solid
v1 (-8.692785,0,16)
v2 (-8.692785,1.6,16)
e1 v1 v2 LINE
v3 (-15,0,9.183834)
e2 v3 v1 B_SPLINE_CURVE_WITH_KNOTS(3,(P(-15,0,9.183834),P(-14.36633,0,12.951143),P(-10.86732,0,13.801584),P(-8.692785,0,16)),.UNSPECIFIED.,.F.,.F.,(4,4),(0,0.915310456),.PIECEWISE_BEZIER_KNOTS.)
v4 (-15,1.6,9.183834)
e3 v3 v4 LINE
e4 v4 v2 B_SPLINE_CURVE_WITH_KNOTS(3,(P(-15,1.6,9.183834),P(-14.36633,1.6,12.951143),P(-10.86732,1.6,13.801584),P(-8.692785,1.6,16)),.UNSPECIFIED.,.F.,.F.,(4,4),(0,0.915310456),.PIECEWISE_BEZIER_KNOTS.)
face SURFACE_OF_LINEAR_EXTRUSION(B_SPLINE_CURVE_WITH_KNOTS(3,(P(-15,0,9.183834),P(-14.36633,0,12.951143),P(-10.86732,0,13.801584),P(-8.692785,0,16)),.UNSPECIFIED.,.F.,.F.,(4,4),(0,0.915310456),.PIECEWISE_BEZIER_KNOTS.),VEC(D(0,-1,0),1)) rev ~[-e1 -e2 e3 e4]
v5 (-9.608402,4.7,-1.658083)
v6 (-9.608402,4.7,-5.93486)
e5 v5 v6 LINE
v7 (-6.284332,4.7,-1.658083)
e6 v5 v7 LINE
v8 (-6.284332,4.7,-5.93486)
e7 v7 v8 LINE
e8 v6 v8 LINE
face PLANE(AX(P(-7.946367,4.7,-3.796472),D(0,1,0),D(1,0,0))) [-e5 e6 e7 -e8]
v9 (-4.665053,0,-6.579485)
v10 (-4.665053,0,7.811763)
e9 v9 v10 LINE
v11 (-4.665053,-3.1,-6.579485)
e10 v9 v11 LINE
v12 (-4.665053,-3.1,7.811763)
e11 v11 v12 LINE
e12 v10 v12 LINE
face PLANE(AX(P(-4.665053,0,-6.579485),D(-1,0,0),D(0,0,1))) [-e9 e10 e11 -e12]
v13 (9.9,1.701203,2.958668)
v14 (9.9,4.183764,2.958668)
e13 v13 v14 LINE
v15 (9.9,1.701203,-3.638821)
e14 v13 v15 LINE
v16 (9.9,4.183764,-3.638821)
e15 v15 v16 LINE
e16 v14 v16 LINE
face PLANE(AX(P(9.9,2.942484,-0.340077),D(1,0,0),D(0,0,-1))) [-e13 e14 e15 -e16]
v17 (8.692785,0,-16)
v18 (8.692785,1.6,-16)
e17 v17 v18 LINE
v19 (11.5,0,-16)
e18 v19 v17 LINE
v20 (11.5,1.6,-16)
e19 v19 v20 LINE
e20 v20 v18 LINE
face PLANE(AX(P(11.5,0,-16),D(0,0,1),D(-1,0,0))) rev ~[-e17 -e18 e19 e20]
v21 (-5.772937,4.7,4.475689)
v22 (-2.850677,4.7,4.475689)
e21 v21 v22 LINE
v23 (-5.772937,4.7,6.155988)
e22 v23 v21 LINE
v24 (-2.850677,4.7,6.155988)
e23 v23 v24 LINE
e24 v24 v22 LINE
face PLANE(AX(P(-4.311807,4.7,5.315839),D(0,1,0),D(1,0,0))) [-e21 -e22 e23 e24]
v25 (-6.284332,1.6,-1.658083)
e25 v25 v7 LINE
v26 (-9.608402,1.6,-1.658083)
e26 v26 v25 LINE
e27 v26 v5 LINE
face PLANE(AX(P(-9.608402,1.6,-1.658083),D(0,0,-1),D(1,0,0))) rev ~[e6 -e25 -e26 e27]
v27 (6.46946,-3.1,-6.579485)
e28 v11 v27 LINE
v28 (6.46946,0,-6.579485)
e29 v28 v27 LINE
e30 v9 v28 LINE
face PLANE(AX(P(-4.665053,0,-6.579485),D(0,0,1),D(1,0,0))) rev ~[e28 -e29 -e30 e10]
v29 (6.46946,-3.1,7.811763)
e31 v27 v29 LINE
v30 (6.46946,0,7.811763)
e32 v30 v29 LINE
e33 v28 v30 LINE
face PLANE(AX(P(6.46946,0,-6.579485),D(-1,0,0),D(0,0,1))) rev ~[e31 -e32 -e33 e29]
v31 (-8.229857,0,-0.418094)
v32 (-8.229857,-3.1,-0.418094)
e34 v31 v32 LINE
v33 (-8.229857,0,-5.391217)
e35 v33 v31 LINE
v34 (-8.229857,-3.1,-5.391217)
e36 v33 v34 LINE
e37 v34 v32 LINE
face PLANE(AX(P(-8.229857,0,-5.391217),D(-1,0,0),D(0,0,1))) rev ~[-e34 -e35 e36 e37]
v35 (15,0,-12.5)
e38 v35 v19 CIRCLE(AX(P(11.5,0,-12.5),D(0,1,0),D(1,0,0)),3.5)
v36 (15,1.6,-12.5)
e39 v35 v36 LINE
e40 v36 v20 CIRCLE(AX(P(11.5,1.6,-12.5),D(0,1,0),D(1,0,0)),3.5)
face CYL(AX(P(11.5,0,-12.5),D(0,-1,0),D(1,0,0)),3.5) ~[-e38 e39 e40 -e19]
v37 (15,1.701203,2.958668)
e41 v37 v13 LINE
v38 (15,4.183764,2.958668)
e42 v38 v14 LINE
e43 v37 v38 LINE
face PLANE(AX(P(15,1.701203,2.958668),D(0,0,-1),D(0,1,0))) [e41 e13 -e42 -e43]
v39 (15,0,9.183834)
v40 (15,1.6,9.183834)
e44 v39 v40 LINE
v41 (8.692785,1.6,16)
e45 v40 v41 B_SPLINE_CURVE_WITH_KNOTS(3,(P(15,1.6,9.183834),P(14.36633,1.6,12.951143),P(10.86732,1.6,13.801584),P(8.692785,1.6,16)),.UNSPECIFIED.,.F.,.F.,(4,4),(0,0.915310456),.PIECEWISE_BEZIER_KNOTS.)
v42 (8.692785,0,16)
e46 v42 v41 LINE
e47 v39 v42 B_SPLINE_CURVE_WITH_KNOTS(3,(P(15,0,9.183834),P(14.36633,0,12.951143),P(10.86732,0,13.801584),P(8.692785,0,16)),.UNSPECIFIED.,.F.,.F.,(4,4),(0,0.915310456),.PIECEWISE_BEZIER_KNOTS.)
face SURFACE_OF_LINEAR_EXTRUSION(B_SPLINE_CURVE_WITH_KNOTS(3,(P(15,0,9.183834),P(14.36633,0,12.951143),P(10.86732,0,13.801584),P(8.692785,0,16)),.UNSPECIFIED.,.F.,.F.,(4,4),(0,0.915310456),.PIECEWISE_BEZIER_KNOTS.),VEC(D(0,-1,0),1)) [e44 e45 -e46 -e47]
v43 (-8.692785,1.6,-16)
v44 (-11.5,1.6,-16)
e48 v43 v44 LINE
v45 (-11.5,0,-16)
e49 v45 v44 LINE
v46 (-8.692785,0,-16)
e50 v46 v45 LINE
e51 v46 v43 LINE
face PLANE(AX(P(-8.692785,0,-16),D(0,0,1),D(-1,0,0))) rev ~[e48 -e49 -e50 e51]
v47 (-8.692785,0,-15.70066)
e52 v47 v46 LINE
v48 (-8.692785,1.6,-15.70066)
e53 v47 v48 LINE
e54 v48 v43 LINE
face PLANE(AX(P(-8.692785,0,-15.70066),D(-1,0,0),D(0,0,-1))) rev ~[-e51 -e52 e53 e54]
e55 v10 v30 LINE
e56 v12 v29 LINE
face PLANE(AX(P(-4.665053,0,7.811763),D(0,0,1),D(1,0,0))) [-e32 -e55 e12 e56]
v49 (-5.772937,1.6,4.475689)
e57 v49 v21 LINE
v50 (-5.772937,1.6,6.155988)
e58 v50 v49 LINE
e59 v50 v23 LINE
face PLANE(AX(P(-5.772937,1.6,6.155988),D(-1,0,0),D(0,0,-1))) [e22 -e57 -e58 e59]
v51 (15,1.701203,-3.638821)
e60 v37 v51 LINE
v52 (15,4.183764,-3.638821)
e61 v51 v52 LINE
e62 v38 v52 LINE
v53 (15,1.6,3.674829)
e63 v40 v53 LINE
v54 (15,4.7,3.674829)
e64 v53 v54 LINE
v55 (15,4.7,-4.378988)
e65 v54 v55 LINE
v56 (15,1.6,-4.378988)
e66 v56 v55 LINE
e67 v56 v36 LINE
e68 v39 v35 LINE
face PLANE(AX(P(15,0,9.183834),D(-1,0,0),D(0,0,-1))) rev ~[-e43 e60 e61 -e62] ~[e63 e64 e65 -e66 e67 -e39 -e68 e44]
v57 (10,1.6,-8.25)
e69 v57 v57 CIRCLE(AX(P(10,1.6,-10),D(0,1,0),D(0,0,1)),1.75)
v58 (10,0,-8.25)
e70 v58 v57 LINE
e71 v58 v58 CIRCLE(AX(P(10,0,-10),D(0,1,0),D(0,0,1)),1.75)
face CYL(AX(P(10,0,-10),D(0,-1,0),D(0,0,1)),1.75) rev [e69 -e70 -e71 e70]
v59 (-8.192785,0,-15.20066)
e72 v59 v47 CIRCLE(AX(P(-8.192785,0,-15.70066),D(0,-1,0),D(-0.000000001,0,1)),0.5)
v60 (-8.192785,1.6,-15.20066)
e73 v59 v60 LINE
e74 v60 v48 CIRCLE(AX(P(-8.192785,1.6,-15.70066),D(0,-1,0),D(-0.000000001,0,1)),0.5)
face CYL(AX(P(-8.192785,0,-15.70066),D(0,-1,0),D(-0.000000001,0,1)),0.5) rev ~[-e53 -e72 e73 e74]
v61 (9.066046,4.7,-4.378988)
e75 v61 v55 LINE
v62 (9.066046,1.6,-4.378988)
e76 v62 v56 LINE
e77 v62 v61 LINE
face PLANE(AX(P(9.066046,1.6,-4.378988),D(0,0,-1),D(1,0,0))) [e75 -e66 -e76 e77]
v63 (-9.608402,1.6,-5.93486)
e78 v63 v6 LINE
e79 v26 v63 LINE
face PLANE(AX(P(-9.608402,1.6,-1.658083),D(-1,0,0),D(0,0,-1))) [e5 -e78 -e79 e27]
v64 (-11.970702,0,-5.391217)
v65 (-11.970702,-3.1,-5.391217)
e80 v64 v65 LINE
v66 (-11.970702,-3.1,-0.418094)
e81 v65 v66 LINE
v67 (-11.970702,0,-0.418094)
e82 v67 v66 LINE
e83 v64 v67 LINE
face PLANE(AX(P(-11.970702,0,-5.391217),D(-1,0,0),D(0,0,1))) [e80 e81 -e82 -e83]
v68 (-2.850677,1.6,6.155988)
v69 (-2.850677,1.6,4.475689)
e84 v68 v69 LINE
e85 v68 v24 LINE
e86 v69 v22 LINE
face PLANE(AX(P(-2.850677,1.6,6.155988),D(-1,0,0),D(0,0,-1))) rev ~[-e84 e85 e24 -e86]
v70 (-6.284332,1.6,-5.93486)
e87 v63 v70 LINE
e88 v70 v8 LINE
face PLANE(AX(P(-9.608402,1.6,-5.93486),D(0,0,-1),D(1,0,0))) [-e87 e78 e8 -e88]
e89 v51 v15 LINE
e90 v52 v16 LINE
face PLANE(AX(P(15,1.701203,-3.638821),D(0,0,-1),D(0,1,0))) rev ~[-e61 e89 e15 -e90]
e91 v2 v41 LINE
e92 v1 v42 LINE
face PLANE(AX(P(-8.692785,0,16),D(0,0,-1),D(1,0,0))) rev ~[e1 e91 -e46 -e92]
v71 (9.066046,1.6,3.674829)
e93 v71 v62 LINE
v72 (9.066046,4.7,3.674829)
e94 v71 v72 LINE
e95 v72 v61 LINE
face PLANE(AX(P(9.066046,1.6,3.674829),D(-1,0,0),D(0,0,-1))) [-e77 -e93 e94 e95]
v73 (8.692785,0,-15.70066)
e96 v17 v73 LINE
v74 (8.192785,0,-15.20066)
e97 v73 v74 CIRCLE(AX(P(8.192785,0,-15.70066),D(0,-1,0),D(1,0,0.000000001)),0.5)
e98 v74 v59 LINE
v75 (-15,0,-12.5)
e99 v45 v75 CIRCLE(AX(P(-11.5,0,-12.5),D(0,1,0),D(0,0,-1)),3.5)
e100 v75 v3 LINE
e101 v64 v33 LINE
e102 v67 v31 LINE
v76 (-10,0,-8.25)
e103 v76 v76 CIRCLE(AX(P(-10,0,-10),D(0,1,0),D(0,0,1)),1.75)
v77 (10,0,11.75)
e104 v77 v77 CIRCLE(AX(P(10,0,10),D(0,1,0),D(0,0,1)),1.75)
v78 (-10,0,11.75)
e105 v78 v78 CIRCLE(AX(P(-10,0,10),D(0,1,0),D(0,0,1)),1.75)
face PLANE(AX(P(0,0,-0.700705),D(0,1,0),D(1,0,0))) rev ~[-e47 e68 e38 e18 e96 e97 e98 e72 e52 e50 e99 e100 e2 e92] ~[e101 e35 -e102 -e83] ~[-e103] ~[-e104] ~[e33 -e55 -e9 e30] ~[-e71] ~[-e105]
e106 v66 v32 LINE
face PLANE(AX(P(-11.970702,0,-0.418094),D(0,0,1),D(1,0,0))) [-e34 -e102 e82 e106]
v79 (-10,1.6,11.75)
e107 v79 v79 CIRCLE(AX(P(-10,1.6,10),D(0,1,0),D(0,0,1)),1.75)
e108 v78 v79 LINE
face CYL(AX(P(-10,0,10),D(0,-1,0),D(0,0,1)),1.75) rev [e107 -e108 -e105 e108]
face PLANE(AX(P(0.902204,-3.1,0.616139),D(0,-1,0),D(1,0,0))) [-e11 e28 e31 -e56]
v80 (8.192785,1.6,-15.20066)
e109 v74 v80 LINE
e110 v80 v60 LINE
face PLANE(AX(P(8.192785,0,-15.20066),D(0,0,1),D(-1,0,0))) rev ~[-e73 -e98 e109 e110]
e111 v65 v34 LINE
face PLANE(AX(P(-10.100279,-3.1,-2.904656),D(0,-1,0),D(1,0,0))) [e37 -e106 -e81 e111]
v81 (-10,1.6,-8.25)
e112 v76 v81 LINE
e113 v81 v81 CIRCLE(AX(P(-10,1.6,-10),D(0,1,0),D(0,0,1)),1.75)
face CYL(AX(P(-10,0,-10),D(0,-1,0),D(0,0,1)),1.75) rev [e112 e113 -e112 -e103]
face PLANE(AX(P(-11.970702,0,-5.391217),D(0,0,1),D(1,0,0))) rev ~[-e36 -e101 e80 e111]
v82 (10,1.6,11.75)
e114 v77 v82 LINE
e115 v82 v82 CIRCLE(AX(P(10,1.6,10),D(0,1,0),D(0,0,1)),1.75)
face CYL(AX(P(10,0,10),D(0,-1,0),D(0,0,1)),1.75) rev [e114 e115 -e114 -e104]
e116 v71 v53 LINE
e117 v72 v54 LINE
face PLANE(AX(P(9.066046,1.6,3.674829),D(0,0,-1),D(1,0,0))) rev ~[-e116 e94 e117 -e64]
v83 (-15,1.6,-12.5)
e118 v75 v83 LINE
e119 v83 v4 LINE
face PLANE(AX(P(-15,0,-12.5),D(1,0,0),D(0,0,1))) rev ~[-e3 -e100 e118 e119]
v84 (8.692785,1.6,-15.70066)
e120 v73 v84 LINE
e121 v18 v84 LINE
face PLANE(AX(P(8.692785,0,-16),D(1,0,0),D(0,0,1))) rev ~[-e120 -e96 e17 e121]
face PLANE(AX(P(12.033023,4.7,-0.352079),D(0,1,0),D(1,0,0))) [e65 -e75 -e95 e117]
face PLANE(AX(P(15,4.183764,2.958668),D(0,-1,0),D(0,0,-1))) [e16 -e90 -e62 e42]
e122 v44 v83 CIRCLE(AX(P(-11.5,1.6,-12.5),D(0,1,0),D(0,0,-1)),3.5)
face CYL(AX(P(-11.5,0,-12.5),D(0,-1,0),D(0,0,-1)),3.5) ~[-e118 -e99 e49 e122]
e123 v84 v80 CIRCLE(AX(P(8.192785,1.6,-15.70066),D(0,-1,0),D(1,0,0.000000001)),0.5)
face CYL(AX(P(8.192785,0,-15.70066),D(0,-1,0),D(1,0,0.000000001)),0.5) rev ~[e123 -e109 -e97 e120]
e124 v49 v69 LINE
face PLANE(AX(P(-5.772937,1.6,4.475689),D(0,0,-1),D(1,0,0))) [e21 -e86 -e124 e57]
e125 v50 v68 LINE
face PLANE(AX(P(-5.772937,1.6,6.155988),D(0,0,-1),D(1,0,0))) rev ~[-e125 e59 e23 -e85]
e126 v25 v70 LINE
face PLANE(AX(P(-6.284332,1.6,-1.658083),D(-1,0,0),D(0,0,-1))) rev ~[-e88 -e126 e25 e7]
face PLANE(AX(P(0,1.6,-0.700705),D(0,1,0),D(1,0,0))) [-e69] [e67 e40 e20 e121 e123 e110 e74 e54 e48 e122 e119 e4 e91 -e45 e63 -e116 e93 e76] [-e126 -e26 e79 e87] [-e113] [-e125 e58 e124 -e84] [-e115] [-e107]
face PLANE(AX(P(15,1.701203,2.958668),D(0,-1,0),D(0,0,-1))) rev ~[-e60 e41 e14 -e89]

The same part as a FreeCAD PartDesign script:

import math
import FreeCAD as App
import Part
import Sketcher
from FreeCAD import Vector
Q = App.Units.Quantity

doc = App.newDocument("Part")
body = doc.addObject("PartDesign::Body", "Body")

# Sketch on XZ plane
sketch1 = body.newObject("Sketcher::SketchObject", "Sketch")
sketch1.AttachmentSupport = (doc.getObject("XZ_Plane"), [""])
sketch1.MapMode = "FlatFace"
sketch1.addGeometry([
    Part.LineSegment(Vector(-8.692785, 16, 0), Vector(8.692785, 16, 0)),  # 0
    Part.BSplineCurve([Vector(15, 9.183834, 0), Vector(14.36633, 12.951143, 0), Vector(10.86732, 13.801584, 0), Vector(8.692785, 16, 0)], [4, 4], [0, 0.915310456], False, 3, [1, 1, 1, 1], False),  # 1
    Part.LineSegment(Vector(15, 9.183834, 0), Vector(15, -12.5, 0)),  # 2
    Part.ArcOfCircle(Part.Circle(Vector(11.5, -12.5, 0), Vector(0, 0, 1), 3.5), math.radians(-90), math.radians(0)),  # 3
    Part.LineSegment(Vector(11.5, -16, 0), Vector(8.692785, -16, 0)),  # 4
    Part.LineSegment(Vector(8.692785, -16, 0), Vector(8.692785, -15.70066, 0)),  # 5
    Part.ArcOfCircle(Part.Circle(Vector(8.192785, -15.70066, 0), Vector(0, 0, 1), 0.5), math.radians(0), math.radians(90)),  # 6
    Part.LineSegment(Vector(8.192785, -15.20066, 0), Vector(-8.192785, -15.20066, 0)),  # 7
    Part.ArcOfCircle(Part.Circle(Vector(-8.192785, -15.70066, 0), Vector(0, 0, 1), 0.5), math.radians(90), math.radians(180)),  # 8
    Part.LineSegment(Vector(-8.692785, -15.70066, 0), Vector(-8.692785, -16, 0)),  # 9
    Part.LineSegment(Vector(-8.692785, -16, 0), Vector(-11.5, -16, 0)),  # 10
    Part.ArcOfCircle(Part.Circle(Vector(-11.5, -12.5, 0), Vector(0, 0, 1), 3.5), math.radians(-180), math.radians(-90)),  # 11
    Part.LineSegment(Vector(-15, -12.5, 0), Vector(-15, 9.183834, 0)),  # 12
    Part.BSplineCurve([Vector(-15, 9.183834, 0), Vector(-14.36633, 12.951143, 0), Vector(-10.86732, 13.801584, 0), Vector(-8.692785, 16, 0)], [4, 4], [0, 0.915310456], False, 3, [1, 1, 1, 1], False),  # 13
    Part.Circle(Vector(-10, 10, 0), Vector(0, 0, 1), 1.75),  # 14
    Part.Circle(Vector(10, 10, 0), Vector(0, 0, 1), 1.75),  # 15
    Part.Circle(Vector(-10, -10, 0), Vector(0, 0, 1), 1.75),  # 16
    Part.Circle(Vector(10, -10, 0), Vector(0, 0, 1), 1.75),  # 17
], False)
sketch1.addConstraint([
    Sketcher.Constraint("Block", 1),
    Sketcher.Constraint("Block", 13),
    Sketcher.Constraint("Coincident", 0, 2, 1, 2),
    Sketcher.Constraint("Coincident", 1, 1, 2, 1),
    Sketcher.Constraint("Tangent", 2, 2, 3, 2),
    Sketcher.Constraint("Tangent", 3, 1, 4, 1),
    Sketcher.Constraint("Coincident", 4, 2, 5, 1),
    Sketcher.Constraint("Tangent", 5, 2, 6, 1),
    Sketcher.Constraint("Tangent", 6, 2, 7, 1),
    Sketcher.Constraint("Tangent", 7, 2, 8, 1),
    Sketcher.Constraint("Tangent", 8, 2, 9, 1),
    Sketcher.Constraint("Coincident", 9, 2, 10, 1),
    Sketcher.Constraint("Tangent", 10, 2, 11, 2),
    Sketcher.Constraint("Tangent", 11, 1, 12, 1),
    Sketcher.Constraint("Coincident", 12, 2, 13, 1),
    Sketcher.Constraint("Coincident", 13, 2, 0, 1),
    Sketcher.Constraint("Vertical", 2),
    Sketcher.Constraint("Horizontal", 4),
    Sketcher.Constraint("Vertical", 5),
    Sketcher.Constraint("Horizontal", 7),
    Sketcher.Constraint("Vertical", 9),
    Sketcher.Constraint("Horizontal", 10),
    Sketcher.Constraint("Vertical", 12),
    Sketcher.Constraint("Equal", 6, 8),
    Sketcher.Constraint("Equal", 3, 11),
    Sketcher.Constraint("Equal", 14, 15),
    Sketcher.Constraint("Equal", 15, 16),
    Sketcher.Constraint("Equal", 16, 17),
    Sketcher.Constraint("Symmetric", 15, 3, 16, 3, -1, 1),
    Sketcher.Constraint("Symmetric", 14, 3, 17, 3, -1, 1),
    Sketcher.Constraint("Symmetric", 0, 2, 9, 2, -1, 1),
    Sketcher.Constraint("Symmetric", 14, 3, 15, 3, -2),
    Sketcher.Constraint("Symmetric", 4, 2, 9, 2, -2),
    Sketcher.Constraint("Diameter", 14, Q("3.5 mm")),
    Sketcher.Constraint("Radius", 3, Q("3.5 mm")),
    Sketcher.Constraint("Radius", 6, Q("0.5 mm")),
    Sketcher.Constraint("DistanceX", 14, 3, -1, 1, Q("10 mm")),
    Sketcher.Constraint("DistanceY", -1, 1, 14, 3, Q("10 mm")),
    Sketcher.Constraint("DistanceY", 5, 1, 5, 2, Q("0.29934 mm")),
])
pad1 = body.newObject("PartDesign::Pad", "Pad")
pad1.Profile = sketch1
pad1.Length = 1.6
pad1.Reversed = True

# Sketch on XZ plane
sketch2 = body.newObject("Sketcher::SketchObject", "Sketch001")
sketch2.AttachmentSupport = (doc.getObject("XZ_Plane"), [""])
sketch2.MapMode = "FlatFace"
sketch2.AttachmentOffset = App.Placement(Vector(0, 0, -1.6), App.Rotation())
sketch2.addGeometry([
    Part.LineSegment(Vector(9.066046, -4.378988, 0), Vector(9.066046, 3.674829, 0)),  # 0
    Part.LineSegment(Vector(9.066046, 3.674829, 0), Vector(15, 3.674829, 0)),  # 1
    Part.LineSegment(Vector(15, 3.674829, 0), Vector(15, -4.378988, 0)),  # 2
    Part.LineSegment(Vector(15, -4.378988, 0), Vector(9.066046, -4.378988, 0)),  # 3
    Part.LineSegment(Vector(-9.608402, -5.93486, 0), Vector(-9.608402, -1.658083, 0)),  # 4
    Part.LineSegment(Vector(-9.608402, -1.658083, 0), Vector(-6.284332, -1.658083, 0)),  # 5
    Part.LineSegment(Vector(-6.284332, -1.658083, 0), Vector(-6.284332, -5.93486, 0)),  # 6
    Part.LineSegment(Vector(-6.284332, -5.93486, 0), Vector(-9.608402, -5.93486, 0)),  # 7
    Part.LineSegment(Vector(-5.772937, 4.475689, 0), Vector(-5.772937, 6.155988, 0)),  # 8
    Part.LineSegment(Vector(-5.772937, 6.155988, 0), Vector(-2.850677, 6.155988, 0)),  # 9
    Part.LineSegment(Vector(-2.850677, 6.155988, 0), Vector(-2.850677, 4.475689, 0)),  # 10
    Part.LineSegment(Vector(-2.850677, 4.475689, 0), Vector(-5.772937, 4.475689, 0)),  # 11
], False)
sketch2.addConstraint([
    Sketcher.Constraint("Coincident", 0, 2, 1, 1),
    Sketcher.Constraint("Coincident", 1, 2, 2, 1),
    Sketcher.Constraint("Coincident", 2, 2, 3, 1),
    Sketcher.Constraint("Coincident", 3, 2, 0, 1),
    Sketcher.Constraint("Coincident", 4, 2, 5, 1),
    Sketcher.Constraint("Coincident", 5, 2, 6, 1),
    Sketcher.Constraint("Coincident", 6, 2, 7, 1),
    Sketcher.Constraint("Coincident", 7, 2, 4, 1),
    Sketcher.Constraint("Coincident", 8, 2, 9, 1),
    Sketcher.Constraint("Coincident", 9, 2, 10, 1),
    Sketcher.Constraint("Coincident", 10, 2, 11, 1),
    Sketcher.Constraint("Coincident", 11, 2, 8, 1),
    Sketcher.Constraint("Vertical", 0),
    Sketcher.Constraint("Horizontal", 1),
    Sketcher.Constraint("Vertical", 2),
    Sketcher.Constraint("Horizontal", 3),
    Sketcher.Constraint("Vertical", 4),
    Sketcher.Constraint("Horizontal", 5),
    Sketcher.Constraint("Vertical", 6),
    Sketcher.Constraint("Horizontal", 7),
    Sketcher.Constraint("Vertical", 8),
    Sketcher.Constraint("Horizontal", 9),
    Sketcher.Constraint("Vertical", 10),
    Sketcher.Constraint("Horizontal", 11),
    Sketcher.Constraint("DistanceX", -1, 1, 1, 2, Q("15 mm")),
    Sketcher.Constraint("DistanceY", 8, 1, 8, 2, Q("1.680299 mm")),
    Sketcher.Constraint("DistanceX", 5, 1, 5, 2, Q("3.32407 mm")),
    Sketcher.Constraint("DistanceX", 9, 1, 9, 2, Q("2.92226 mm")),
    Sketcher.Constraint("DistanceX", 1, 1, 1, 2, Q("5.933954 mm")),
    Sketcher.Constraint("DistanceY", 0, 1, 0, 2, Q("8.053818 mm")),
    Sketcher.Constraint("DistanceY", 4, 1, 4, 2, Q("4.276777 mm")),
    Sketcher.Constraint("DistanceY", -1, 1, 0, 2, Q("3.674829 mm")),
    Sketcher.Constraint("DistanceY", 6, 2, -1, 1, Q("5.93486 mm")),
    Sketcher.Constraint("DistanceY", -1, 1, 8, 2, Q("6.155988 mm")),
    Sketcher.Constraint("DistanceX", 4, 2, 3, 2, Q("18.674449 mm")),
    Sketcher.Constraint("DistanceX", 8, 2, -1, 1, Q("5.772937 mm")),
])
pad2 = body.newObject("PartDesign::Pad", "Pad001")
pad2.Profile = sketch2
pad2.Length = 3.1
pad2.Reversed = True

# Sketch on XZ plane
sketch3 = body.newObject("Sketcher::SketchObject", "Sketch002")
sketch3.AttachmentSupport = (doc.getObject("XZ_Plane"), [""])
sketch3.MapMode = "FlatFace"
sketch3.addGeometry([
    Part.LineSegment(Vector(-11.970702, -0.418094, 0), Vector(-11.970702, -5.391217, 0)),  # 0
    Part.LineSegment(Vector(-11.970702, -5.391217, 0), Vector(-8.229857, -5.391217, 0)),  # 1
    Part.LineSegment(Vector(-8.229857, -5.391217, 0), Vector(-8.229857, -0.418094, 0)),  # 2
    Part.LineSegment(Vector(-8.229857, -0.418094, 0), Vector(-11.970702, -0.418094, 0)),  # 3
    Part.LineSegment(Vector(-4.665053, 7.811763, 0), Vector(-4.665053, -6.579485, 0)),  # 4
    Part.LineSegment(Vector(-4.665053, -6.579485, 0), Vector(6.46946, -6.579485, 0)),  # 5
    Part.LineSegment(Vector(6.46946, -6.579485, 0), Vector(6.46946, 7.811763, 0)),  # 6
    Part.LineSegment(Vector(6.46946, 7.811763, 0), Vector(-4.665053, 7.811763, 0)),  # 7
], False)
sketch3.addConstraint([
    Sketcher.Constraint("Coincident", 0, 2, 1, 1),
    Sketcher.Constraint("Coincident", 1, 2, 2, 1),
    Sketcher.Constraint("Coincident", 2, 2, 3, 1),
    Sketcher.Constraint("Coincident", 3, 2, 0, 1),
    Sketcher.Constraint("Coincident", 4, 2, 5, 1),
    Sketcher.Constraint("Coincident", 5, 2, 6, 1),
    Sketcher.Constraint("Coincident", 6, 2, 7, 1),
    Sketcher.Constraint("Coincident", 7, 2, 4, 1),
    Sketcher.Constraint("Vertical", 0),
    Sketcher.Constraint("Horizontal", 1),
    Sketcher.Constraint("Vertical", 2),
    Sketcher.Constraint("Horizontal", 3),
    Sketcher.Constraint("Vertical", 4),
    Sketcher.Constraint("Horizontal", 5),
    Sketcher.Constraint("Vertical", 6),
    Sketcher.Constraint("Horizontal", 7),
    Sketcher.Constraint("DistanceX", 0, 2, -1, 1, Q("11.970702 mm")),
    Sketcher.Constraint("DistanceX", 1, 1, 1, 2, Q("3.740844 mm")),
    Sketcher.Constraint("DistanceX", 5, 1, 5, 2, Q("11.134513 mm")),
    Sketcher.Constraint("DistanceY", 0, 2, 0, 1, Q("4.973122 mm")),
    Sketcher.Constraint("DistanceY", 4, 2, 4, 1, Q("14.391248 mm")),
    Sketcher.Constraint("DistanceX", -1, 1, 5, 2, Q("6.46946 mm")),
    Sketcher.Constraint("DistanceY", 4, 2, 1, 2, Q("1.188268 mm")),
    Sketcher.Constraint("DistanceY", 0, 2, -1, 1, Q("5.391217 mm")),
])
pad3 = body.newObject("PartDesign::Pad", "Pad002")
pad3.Profile = sketch3
pad3.Length = 3.1

# Sketch on YZ plane
sketch4 = body.newObject("Sketcher::SketchObject", "Sketch003")
sketch4.AttachmentSupport = (doc.getObject("YZ_Plane"), [""])
sketch4.MapMode = "FlatFace"
sketch4.AttachmentOffset = App.Placement(Vector(0, 0, 15), App.Rotation())
sketch4.addGeometry([
    Part.LineSegment(Vector(4.183764, 2.958668, 0), Vector(1.701203, 2.958668, 0)),
    Part.LineSegment(Vector(1.701203, 2.958668, 0), Vector(1.701203, -3.638821, 0)),
    Part.LineSegment(Vector(1.701203, -3.638821, 0), Vector(4.183764, -3.638821, 0)),
    Part.LineSegment(Vector(4.183764, -3.638821, 0), Vector(4.183764, 2.958668, 0)),
], False)
sketch4.addConstraint([
    Sketcher.Constraint("Coincident", 0, 2, 1, 1),
    Sketcher.Constraint("Coincident", 1, 2, 2, 1),
    Sketcher.Constraint("Coincident", 2, 2, 3, 1),
    Sketcher.Constraint("Coincident", 3, 2, 0, 1),
    Sketcher.Constraint("Horizontal", 0),
    Sketcher.Constraint("Vertical", 1),
    Sketcher.Constraint("Horizontal", 2),
    Sketcher.Constraint("Vertical", 3),
    Sketcher.Constraint("DistanceX", 0, 2, 0, 1, Q("2.48256 mm")),
    Sketcher.Constraint("DistanceY", 1, 2, 1, 1, Q("6.597489 mm")),
    Sketcher.Constraint("DistanceY", 1, 2, -1, 1, Q("3.638821 mm")),
    Sketcher.Constraint("DistanceX", -1, 1, 0, 2, Q("1.701203 mm")),
])
pocket1 = body.newObject("PartDesign::Pocket", "Pocket")
pocket1.Profile = sketch4
pocket1.Length = 5.1

doc.recompute()
